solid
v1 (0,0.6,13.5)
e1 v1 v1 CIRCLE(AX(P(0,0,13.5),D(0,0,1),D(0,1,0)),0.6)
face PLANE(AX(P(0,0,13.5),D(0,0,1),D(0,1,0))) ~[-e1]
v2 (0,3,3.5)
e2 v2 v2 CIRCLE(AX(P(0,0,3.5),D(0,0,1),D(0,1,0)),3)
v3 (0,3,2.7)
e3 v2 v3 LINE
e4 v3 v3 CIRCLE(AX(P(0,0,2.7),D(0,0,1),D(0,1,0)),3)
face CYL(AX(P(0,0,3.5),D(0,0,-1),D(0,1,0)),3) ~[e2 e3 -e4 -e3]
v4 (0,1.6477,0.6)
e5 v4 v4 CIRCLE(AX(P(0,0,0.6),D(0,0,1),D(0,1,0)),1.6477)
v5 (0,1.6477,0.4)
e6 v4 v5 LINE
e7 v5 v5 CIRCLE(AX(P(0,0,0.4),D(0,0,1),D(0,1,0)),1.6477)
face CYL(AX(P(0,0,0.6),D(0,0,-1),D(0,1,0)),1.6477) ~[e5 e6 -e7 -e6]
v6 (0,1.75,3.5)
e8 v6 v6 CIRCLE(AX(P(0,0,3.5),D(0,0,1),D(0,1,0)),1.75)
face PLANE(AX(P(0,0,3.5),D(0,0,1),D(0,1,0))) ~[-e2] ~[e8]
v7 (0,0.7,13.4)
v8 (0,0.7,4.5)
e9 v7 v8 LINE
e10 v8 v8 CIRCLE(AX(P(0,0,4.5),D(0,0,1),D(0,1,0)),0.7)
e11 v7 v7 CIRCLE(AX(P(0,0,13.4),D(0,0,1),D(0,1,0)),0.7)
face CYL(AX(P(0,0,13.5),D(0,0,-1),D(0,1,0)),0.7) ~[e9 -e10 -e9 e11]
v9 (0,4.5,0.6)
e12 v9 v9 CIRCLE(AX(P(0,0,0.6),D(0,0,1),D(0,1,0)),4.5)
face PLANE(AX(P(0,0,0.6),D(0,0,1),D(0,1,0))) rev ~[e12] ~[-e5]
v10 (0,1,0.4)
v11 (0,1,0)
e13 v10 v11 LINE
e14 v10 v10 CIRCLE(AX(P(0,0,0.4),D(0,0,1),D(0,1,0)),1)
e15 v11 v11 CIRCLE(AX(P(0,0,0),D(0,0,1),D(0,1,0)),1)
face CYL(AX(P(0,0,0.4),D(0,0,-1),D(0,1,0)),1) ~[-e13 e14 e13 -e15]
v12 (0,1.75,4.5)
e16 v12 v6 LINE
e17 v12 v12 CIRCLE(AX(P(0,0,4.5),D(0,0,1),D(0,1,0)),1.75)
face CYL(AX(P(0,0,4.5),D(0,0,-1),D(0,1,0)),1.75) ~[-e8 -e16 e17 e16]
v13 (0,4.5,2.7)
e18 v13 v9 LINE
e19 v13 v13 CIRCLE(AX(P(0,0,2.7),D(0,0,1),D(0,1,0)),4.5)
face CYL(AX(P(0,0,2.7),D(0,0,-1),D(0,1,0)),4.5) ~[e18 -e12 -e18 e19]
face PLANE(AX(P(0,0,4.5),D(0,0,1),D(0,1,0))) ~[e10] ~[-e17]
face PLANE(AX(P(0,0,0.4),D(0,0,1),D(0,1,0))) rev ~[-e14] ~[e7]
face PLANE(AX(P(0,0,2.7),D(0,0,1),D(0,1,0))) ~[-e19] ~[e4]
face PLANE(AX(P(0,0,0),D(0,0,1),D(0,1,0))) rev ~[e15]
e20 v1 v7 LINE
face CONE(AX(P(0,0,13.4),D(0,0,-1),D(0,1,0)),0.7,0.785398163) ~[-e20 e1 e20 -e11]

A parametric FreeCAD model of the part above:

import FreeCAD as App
import Part
import Sketcher
from FreeCAD import Vector
Q = App.Units.Quantity


def edges_at(feature, points):
    """Names of the edges that pass closest to the given points."""
    edges = feature.Shape.Edges
    near = lambda p: min(range(len(edges)), key=lambda i: edges[i].distToShape(Part.Vertex(*p))[0])
    return sorted({f"Edge{near(p) + 1}" for p in points})


def add_polygon(sketch, points):
    """Adds a closed chain of lines whose ends are joined by coincident constraints."""
    first, n = sketch.GeometryCount, len(points)
    for a, b in zip(points, points[1:] + points[:1]):
        sketch.addGeometry(Part.LineSegment(App.Vector(*a, 0), App.Vector(*b, 0)), False)
    for i in range(n):
        sketch.addConstraint(Sketcher.Constraint("Coincident", first + i, 2, first + (i + 1) % n, 1))

doc = App.newDocument("Part")
body = doc.addObject("PartDesign::Body", "Body")

sketch1 = body.newObject("Sketcher::SketchObject", "Sketch")
sketch1.AttachmentSupport = (doc.getObject("YZ_Plane"), [""])
sketch1.MapMode = "FlatFace"
add_polygon(sketch1, [(0.7, 13.5), (0, 13.5), (0, 0), (1, 0), (1, 0.4), (1.6477, 0.4), (1.6477, 0.6), (4.5, 0.6), (4.5, 2.7), (3, 2.7), (3, 3.5), (1.75, 3.5), (1.75, 4.5), (0.7, 4.5)])
sketch1.addConstraint(Sketcher.Constraint("Horizontal", 0))
sketch1.addConstraint(Sketcher.Constraint("Vertical", 1))
sketch1.addConstraint(Sketcher.Constraint("Horizontal", 2))
sketch1.addConstraint(Sketcher.Constraint("Vertical", 3))
sketch1.addConstraint(Sketcher.Constraint("Horizontal", 4))
sketch1.addConstraint(Sketcher.Constraint("Vertical", 5))
sketch1.addConstraint(Sketcher.Constraint("Horizontal", 6))
sketch1.addConstraint(Sketcher.Constraint("Vertical", 7))
sketch1.addConstraint(Sketcher.Constraint("Horizontal", 8))
sketch1.addConstraint(Sketcher.Constraint("Vertical", 9))
sketch1.addConstraint(Sketcher.Constraint("Horizontal", 10))
sketch1.addConstraint(Sketcher.Constraint("Vertical", 11))
sketch1.addConstraint(Sketcher.Constraint("Horizontal", 12))
sketch1.addConstraint(Sketcher.Constraint("Vertical", 13))
sketch1.addConstraint(Sketcher.Constraint("Coincident", 1, 2, -1, 1))
sketch1.addConstraint(Sketcher.Constraint("Equal", 2, 11))
sketch1.addConstraint(Sketcher.Constraint("DistanceX", 2, 1, 2, 2, Q("1 mm")))
sketch1.addConstraint(Sketcher.Constraint("DistanceY", 13, 1, 13, 2, Q("9 mm")))
sketch1.addConstraint(Sketcher.Constraint("DistanceY", 1, 2, 1, 1, Q("13.5 mm")))
sketch1.addConstraint(Sketcher.Constraint("DistanceY", 3, 1, 3, 2, Q("0.4 mm")))
sketch1.addConstraint(Sketcher.Constraint("DistanceY", 5, 1, 5, 2, Q("0.2 mm")))
sketch1.addConstraint(Sketcher.Constraint("DistanceY", 9, 1, 9, 2, Q("0.8 mm")))
sketch1.addConstraint(Sketcher.Constraint("DistanceX", 3, 2, 8, 2, Q("2 mm")))
sketch1.addConstraint(Sketcher.Constraint("DistanceX", 3, 2, 6, 2, Q("3.5 mm")))
sketch1.addConstraint(Sketcher.Constraint("DistanceX", 0, 2, 0, 1, Q("0.7 mm")))
sketch1.addConstraint(Sketcher.Constraint("DistanceX", 10, 2, 10, 1, Q("1.25 mm")))
sketch1.addConstraint(Sketcher.Constraint("DistanceX", 4, 1, 4, 2, Q("0.6477 mm")))
revolution = body.newObject("PartDesign::Revolution", "Revolution")
revolution.Profile = sketch1
revolution.ReferenceAxis = (sketch1, ["V_Axis"])
revolution.Angle = 360
doc.recompute()

chamfer = body.newObject("PartDesign::Chamfer", "Chamfer")
chamfer.Base = (revolution, edges_at(revolution, [(0, -0.7, 13.5)]))
chamfer.Size = 0.1

doc.recompute()
